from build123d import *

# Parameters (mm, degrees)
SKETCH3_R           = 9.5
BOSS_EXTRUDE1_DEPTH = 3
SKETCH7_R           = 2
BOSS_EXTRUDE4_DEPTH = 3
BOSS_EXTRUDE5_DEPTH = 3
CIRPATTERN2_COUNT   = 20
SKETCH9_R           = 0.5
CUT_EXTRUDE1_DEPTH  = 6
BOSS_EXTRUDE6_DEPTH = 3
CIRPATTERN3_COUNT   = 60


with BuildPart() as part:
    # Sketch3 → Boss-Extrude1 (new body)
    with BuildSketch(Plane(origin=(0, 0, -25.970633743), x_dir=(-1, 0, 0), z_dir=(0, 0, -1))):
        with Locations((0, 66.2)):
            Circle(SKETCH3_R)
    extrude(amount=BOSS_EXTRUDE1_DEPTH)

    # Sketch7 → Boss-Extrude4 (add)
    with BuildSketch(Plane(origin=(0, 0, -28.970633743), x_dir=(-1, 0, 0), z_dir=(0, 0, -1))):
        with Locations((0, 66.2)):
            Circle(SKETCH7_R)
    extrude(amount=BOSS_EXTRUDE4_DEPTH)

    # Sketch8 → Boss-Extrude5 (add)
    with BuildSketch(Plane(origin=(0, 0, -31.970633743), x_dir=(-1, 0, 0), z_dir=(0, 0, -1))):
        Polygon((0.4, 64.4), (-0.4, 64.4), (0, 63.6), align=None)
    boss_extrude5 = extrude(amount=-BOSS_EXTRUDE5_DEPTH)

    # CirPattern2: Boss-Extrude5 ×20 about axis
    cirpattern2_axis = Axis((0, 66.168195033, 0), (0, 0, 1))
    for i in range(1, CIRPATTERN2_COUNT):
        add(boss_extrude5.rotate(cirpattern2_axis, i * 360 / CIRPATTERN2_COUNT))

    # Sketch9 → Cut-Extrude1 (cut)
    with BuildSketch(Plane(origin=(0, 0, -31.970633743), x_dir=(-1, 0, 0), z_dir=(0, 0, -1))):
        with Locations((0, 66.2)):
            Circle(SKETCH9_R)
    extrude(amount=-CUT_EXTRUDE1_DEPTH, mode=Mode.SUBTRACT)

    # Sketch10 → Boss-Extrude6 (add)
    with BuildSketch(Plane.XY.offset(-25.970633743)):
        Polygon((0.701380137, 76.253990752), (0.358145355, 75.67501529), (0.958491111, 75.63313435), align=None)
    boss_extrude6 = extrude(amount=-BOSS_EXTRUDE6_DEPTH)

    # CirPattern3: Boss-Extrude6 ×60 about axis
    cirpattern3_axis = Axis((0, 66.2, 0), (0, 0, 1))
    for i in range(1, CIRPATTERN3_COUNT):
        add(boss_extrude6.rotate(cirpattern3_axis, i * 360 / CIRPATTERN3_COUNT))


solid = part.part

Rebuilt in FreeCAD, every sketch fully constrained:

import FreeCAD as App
import Part
import Sketcher
Q = App.Units.Quantity


def add_polygon(sketch, points):
    """Adds a closed chain of lines whose ends are joined by coincident constraints."""
    first, n = sketch.GeometryCount, len(points)
    for a, b in zip(points, points[1:] + points[:1]):
        sketch.addGeometry(Part.LineSegment(App.Vector(*a, 0), App.Vector(*b, 0)), False)
    for i in range(n):
        sketch.addConstraint(Sketcher.Constraint("Coincident", first + i, 2, first + (i + 1) % n, 1))

doc = App.newDocument("Part")
body = doc.addObject("PartDesign::Body", "Body")

sketch1 = doc.addObject("Sketcher::SketchObject", "Sketch")
body.addObject(sketch1)
sketch1.AttachmentSupport = (doc.XY_Plane, [""])
sketch1.MapMode = "FlatFace"
sketch1.AttachmentOffset = App.Placement(App.Vector(0, 0, -25.970634), App.Rotation())
sketch1.addGeometry(Part.Circle(App.Vector(0, 66.2, 0), App.Vector(0, 0, 1), 9.5), False)
sketch1.addConstraint([
    Sketcher.Constraint("PointOnObject", 0, 3, -2),
    Sketcher.Constraint("Diameter", 0, Q("19 mm")),
    Sketcher.Constraint("DistanceY", -1, 1, 0, 3, Q("66.2 mm")),
])
pad1 = doc.addObject("PartDesign::Pad", "Pad")
body.addObject(pad1)
pad1.Profile = sketch1
pad1.Length = 3
pad1.Reversed = True

sketch2 = doc.addObject("Sketcher::SketchObject", "Sketch001")
body.addObject(sketch2)
sketch2.AttachmentSupport = (doc.XY_Plane, [""])
sketch2.MapMode = "FlatFace"
sketch2.AttachmentOffset = App.Placement(App.Vector(0, 0, -28.970634), App.Rotation())
sketch2.addGeometry(Part.Circle(App.Vector(0, 66.2, 0), App.Vector(0, 0, 1), 2), False)
sketch2.addConstraint([
    Sketcher.Constraint("PointOnObject", 0, 3, -2),
    Sketcher.Constraint("Diameter", 0, Q("4 mm")),
    Sketcher.Constraint("DistanceY", -1, 1, 0, 3, Q("66.2 mm")),
])
pad2 = doc.addObject("PartDesign::Pad", "Pad001")
body.addObject(pad2)
pad2.Profile = sketch2
pad2.Length = 3
pad2.Reversed = True

sketch3 = doc.addObject("Sketcher::SketchObject", "Sketch002")
body.addObject(sketch3)
sketch3.AttachmentSupport = (doc.XY_Plane, [""])
sketch3.MapMode = "FlatFace"
sketch3.AttachmentOffset = App.Placement(App.Vector(0, 0, -31.970634), App.Rotation())
add_polygon(sketch3, [(-0.4, 64.4), (0.4, 64.4), (0, 63.6)])
sketch3.addConstraint([
    Sketcher.Constraint("Horizontal", 0),
    Sketcher.Constraint("PointOnObject", 1, 2, -2),
    Sketcher.Constraint("Equal", 1, 2),
    Sketcher.Constraint("DistanceX", 0, 1, 0, 2, Q("0.8 mm")),
    Sketcher.Constraint("DistanceY", -1, 1, 0, 2, Q("64.4 mm")),
    Sketcher.Constraint("DistanceY", -1, 1, 1, 2, Q("63.6 mm")),
])
pad3 = doc.addObject("PartDesign::Pad", "Pad002")
body.addObject(pad3)
pad3.Profile = sketch3
pad3.Length = 3
doc.recompute()

datumline = doc.addObject("PartDesign::Line", "DatumLine")
body.addObject(datumline)
datumline.Placement = App.Placement(App.Vector(0, 66.168195, 0), App.Rotation(App.Vector(0, 0, 1), App.Vector(0, 0, 1)))
polarpattern = doc.addObject("PartDesign::PolarPattern", "PolarPattern")
body.addObject(polarpattern)
polarpattern.Originals = [pad3]
polarpattern.Axis = (datumline, [""])
polarpattern.Angle = 360
polarpattern.Occurrences = 20
body.Tip = polarpattern

sketch4 = doc.addObject("Sketcher::SketchObject", "Sketch003")
body.addObject(sketch4)
sketch4.AttachmentSupport = (doc.XY_Plane, [""])
sketch4.MapMode = "FlatFace"
sketch4.AttachmentOffset = App.Placement(App.Vector(0, 0, -31.970634), App.Rotation())
sketch4.addGeometry(Part.Circle(App.Vector(0, 66.2, 0), App.Vector(0, 0, 1), 0.5), False)
sketch4.addConstraint([
    Sketcher.Constraint("PointOnObject", 0, 3, -2),
    Sketcher.Constraint("Diameter", 0, Q("1 mm")),
    Sketcher.Constraint("DistanceY", -1, 1, 0, 3, Q("66.2 mm")),
])
pocket1 = doc.addObject("PartDesign::Pocket", "Pocket")
body.addObject(pocket1)
pocket1.Profile = sketch4
pocket1.Length = 6
pocket1.Reversed = True

sketch5 = doc.addObject("Sketcher::SketchObject", "Sketch004")
body.addObject(sketch5)
sketch5.AttachmentSupport = (doc.XY_Plane, [""])
sketch5.MapMode = "FlatFace"
sketch5.AttachmentOffset = App.Placement(App.Vector(0, 0, -25.970634), App.Rotation())
add_polygon(sketch5, [(0.70138, 76.253991), (0.358145, 75.675015), (0.958491, 75.633134)])
sketch5.addConstraint([
    Sketcher.Constraint("Distance", 0, Q("0.67307 mm")),
    Sketcher.Constraint("Distance", 2, Q("0.671989 mm")),
    Sketcher.Constraint("DistanceX", -1, 1, 1, 2, Q("0.958491 mm")),
    Sketcher.Constraint("DistanceX", -1, 1, 2, 2, Q("0.70138 mm")),
    Sketcher.Constraint("DistanceY", -1, 1, 2, 2, Q("76.253991 mm")),
    Sketcher.Constraint("DistanceY", 1, 2, 0, 2, Q("0.041881 mm")),
])
pad4 = doc.addObject("PartDesign::Pad", "Pad003")
body.addObject(pad4)
pad4.Profile = sketch5
pad4.Length = 3
pad4.Reversed = True
doc.recompute()

datumline2 = doc.addObject("PartDesign::Line", "DatumLine001")
body.addObject(datumline2)
datumline2.Placement = App.Placement(App.Vector(0, 66.2, 0), App.Rotation(App.Vector(0, 0, 1), App.Vector(0, 0, 1)))
polarpattern2 = doc.addObject("PartDesign::PolarPattern", "PolarPattern001")
body.addObject(polarpattern2)
polarpattern2.Originals = [pad4]
polarpattern2.Axis = (datumline2, [""])
polarpattern2.Angle = 360
polarpattern2.Occurrences = 60
body.Tip = polarpattern2

doc.recompute()
